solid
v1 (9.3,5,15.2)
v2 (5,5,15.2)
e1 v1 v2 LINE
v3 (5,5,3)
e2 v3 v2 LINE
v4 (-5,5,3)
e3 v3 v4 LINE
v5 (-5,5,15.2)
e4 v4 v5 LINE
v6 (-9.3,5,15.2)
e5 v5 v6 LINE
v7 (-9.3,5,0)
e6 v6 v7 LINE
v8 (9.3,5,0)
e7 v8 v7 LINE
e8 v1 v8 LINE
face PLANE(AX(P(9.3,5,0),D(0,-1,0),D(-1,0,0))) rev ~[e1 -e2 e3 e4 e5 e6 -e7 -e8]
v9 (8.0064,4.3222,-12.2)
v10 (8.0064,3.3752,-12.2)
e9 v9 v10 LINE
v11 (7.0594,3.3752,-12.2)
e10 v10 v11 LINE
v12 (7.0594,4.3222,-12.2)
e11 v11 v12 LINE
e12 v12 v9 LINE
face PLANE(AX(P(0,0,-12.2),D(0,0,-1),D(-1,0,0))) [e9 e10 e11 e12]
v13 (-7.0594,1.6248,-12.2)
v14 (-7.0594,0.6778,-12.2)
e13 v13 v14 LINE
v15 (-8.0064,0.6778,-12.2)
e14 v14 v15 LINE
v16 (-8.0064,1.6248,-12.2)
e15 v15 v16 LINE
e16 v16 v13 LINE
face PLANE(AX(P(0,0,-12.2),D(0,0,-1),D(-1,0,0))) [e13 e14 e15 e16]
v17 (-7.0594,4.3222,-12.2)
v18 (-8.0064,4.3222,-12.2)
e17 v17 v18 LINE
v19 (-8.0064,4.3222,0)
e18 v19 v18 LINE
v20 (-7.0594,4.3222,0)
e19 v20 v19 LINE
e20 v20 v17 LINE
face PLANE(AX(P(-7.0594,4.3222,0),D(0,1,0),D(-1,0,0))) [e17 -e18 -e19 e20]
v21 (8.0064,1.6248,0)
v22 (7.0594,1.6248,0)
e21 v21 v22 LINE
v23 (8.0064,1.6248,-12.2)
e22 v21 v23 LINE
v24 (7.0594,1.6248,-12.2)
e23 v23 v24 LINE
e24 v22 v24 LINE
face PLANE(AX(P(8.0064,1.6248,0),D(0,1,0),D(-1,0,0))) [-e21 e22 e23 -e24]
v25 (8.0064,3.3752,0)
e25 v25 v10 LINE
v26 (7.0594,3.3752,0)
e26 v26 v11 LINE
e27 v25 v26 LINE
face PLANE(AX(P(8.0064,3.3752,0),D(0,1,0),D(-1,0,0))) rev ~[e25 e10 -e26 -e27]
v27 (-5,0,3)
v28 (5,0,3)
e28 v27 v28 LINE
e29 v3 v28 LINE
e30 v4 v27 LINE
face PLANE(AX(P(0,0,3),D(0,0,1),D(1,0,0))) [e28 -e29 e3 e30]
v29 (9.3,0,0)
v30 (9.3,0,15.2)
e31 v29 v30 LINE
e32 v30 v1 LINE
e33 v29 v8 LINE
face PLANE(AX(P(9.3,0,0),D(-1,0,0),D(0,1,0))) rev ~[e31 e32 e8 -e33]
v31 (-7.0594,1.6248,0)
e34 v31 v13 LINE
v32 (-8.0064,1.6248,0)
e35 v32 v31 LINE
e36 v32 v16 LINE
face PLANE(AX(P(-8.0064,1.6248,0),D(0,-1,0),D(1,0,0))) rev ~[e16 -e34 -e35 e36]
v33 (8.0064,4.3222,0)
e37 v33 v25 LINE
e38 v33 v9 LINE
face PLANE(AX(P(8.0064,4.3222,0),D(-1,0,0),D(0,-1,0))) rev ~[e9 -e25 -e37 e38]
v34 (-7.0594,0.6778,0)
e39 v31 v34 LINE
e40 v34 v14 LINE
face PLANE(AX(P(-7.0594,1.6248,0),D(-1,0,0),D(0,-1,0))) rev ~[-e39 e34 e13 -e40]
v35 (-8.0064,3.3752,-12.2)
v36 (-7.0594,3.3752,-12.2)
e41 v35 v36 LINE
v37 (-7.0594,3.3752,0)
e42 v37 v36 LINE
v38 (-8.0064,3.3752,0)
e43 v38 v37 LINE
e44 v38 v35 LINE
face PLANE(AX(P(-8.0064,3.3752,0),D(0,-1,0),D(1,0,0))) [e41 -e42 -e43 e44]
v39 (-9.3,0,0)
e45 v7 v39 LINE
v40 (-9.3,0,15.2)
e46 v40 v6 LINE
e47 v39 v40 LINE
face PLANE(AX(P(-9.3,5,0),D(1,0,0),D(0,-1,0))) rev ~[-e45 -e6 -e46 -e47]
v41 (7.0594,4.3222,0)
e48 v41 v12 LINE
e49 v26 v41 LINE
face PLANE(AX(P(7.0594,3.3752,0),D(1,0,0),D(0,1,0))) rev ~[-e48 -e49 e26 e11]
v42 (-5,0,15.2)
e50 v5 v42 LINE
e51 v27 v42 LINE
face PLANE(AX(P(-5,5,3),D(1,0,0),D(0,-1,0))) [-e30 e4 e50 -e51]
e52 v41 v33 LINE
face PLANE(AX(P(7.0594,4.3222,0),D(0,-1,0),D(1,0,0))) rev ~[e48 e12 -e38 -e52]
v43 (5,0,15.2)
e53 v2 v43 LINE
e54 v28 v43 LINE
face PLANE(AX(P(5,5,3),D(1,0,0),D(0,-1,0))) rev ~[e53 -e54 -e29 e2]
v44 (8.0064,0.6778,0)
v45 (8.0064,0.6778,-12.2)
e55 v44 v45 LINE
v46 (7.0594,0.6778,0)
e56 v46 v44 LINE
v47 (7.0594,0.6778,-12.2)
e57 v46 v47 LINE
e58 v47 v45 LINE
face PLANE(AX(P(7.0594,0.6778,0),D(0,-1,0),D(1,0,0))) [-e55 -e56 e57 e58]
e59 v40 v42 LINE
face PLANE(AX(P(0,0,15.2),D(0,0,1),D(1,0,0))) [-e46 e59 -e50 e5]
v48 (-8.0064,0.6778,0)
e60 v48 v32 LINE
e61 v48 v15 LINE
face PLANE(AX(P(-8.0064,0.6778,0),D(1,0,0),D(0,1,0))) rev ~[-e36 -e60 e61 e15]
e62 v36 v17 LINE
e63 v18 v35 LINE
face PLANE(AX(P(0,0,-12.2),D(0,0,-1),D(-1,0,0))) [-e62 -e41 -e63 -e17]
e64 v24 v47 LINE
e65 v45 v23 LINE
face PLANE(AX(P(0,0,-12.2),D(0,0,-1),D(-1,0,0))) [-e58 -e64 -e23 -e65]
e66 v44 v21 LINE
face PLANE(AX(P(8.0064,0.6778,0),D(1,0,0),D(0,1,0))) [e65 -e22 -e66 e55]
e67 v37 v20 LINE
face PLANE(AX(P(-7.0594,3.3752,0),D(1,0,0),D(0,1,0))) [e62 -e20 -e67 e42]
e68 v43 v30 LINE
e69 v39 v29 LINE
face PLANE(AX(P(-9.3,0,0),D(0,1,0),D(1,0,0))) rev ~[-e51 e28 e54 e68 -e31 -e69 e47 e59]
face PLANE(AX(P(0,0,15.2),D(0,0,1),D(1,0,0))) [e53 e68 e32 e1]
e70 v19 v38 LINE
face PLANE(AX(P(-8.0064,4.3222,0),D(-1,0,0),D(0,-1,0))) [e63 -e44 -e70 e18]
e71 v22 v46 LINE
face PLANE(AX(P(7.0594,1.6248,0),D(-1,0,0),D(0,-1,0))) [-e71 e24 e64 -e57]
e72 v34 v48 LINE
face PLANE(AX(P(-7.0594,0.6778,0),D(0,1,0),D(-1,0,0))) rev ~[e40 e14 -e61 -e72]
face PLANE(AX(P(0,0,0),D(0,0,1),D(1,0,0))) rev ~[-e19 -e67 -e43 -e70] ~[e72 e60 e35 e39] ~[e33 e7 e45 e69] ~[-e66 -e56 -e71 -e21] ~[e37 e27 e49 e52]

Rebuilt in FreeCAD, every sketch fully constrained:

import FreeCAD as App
import Part
import Sketcher

V = App.Vector


def add_polygon(sketch, points):
    """Adds a closed chain of lines whose ends are joined by coincident constraints."""
    first, n = sketch.GeometryCount, len(points)
    for a, b in zip(points, points[1:] + points[:1]):
        sketch.addGeometry(Part.LineSegment(App.Vector(*a, 0), App.Vector(*b, 0)), False)
    for i in range(n):
        sketch.addConstraint(Sketcher.Constraint("Coincident", first + i, 2, first + (i + 1) % n, 1))

doc = App.newDocument("Part")
body = doc.addObject("PartDesign::Body", "Body")

# Sketch on XY plane
sketch1 = doc.addObject("Sketcher::SketchObject", "Sketch")
body.addObject(sketch1)
sketch1.AttachmentSupport = (doc.XY_Plane, [""])
sketch1.MapMode = "FlatFace"
add_polygon(sketch1, [(-9, 5), (-9, 0), (9, 0), (9, 5)])  # lines 0-3
sketch1.addConstraint([
    Sketcher.Constraint("Vertical", 0),
    Sketcher.Constraint("Horizontal", 1),
    Sketcher.Constraint("Vertical", 2),
    Sketcher.Constraint("Horizontal", 3),
    Sketcher.Constraint("Symmetric", 0, 2, 1, 2, -1, 1),
    Sketcher.Constraint("DistanceY", 0, 2, 0, 1, 5.0),
    Sketcher.Constraint("DistanceX", 1, 1, 1, 2, 18.6),
])
pad1 = doc.addObject("PartDesign::Pad", "Pad")
body.addObject(pad1)
pad1.Profile = sketch1
pad1.Length = 3

# Sketch on XY plane
sketch2 = doc.addObject("Sketcher::SketchObject", "Sketch001")
body.addObject(sketch2)
sketch2.AttachmentSupport = (doc.XY_Plane, [""])
sketch2.MapMode = "FlatFace"
sketch2.AttachmentOffset = App.Placement(V(0, 0, 3), App.Rotation())
add_polygon(sketch2, [(9.3, 0), (9.3, 5), (5, 5), (5, 0)])  # lines 0-3
add_polygon(sketch2, [(-5, 0), (-5, 5), (-9.3, 5), (-9.3, 0)])  # lines 4-7
sketch2.addConstraint([
    Sketcher.Constraint("Vertical", 0),
    Sketcher.Constraint("Horizontal", 1),
    Sketcher.Constraint("Vertical", 2),
    Sketcher.Constraint("Horizontal", 3),
    Sketcher.Constraint("Vertical", 4),
    Sketcher.Constraint("Horizontal", 5),
    Sketcher.Constraint("Vertical", 6),
    Sketcher.Constraint("Horizontal", 7),
    Sketcher.Constraint("Symmetric", 3, 2, 6, 2, -1, 1),
    Sketcher.Constraint("Symmetric", 1, 2, 4, 2, -2),
    Sketcher.Constraint("PointOnObject", 2, 2, -1),
    Sketcher.Constraint("DistanceY", 0, 1, 0, 2, 5.0),
    Sketcher.Constraint("DistanceX", -1, 1, 1, 2, 5.0),
    Sketcher.Constraint("DistanceX", 1, 2, 1, 1, 4.3),
])
pad2 = doc.addObject("PartDesign::Pad", "Pad001")
body.addObject(pad2)
pad2.Profile = sketch2
pad2.Length = 12.2

# Sketch on XY plane
sketch3 = doc.addObject("Sketcher::SketchObject", "Sketch002")
body.addObject(sketch3)
sketch3.AttachmentSupport = (doc.XY_Plane, [""])
sketch3.MapMode = "FlatFace"
add_polygon(sketch3, [(7.1, 1.6), (8, 1.6), (8, 0.7), (7.1, 0.7)])  # lines 0-3
add_polygon(sketch3, [(8, 4.3), (8, 3.4), (7.1, 3.4), (7.1, 4.3)])  # lines 4-7
add_polygon(sketch3, [(-8, 0.7), (-8, 1.6), (-7.1, 1.6), (-7.1, 0.7)])  # lines 8-11
add_polygon(sketch3, [(-7.1, 3.4), (-8, 3.4), (-8, 4.3), (-7.1, 4.3)])  # lines 12-15
sketch3.addConstraint([
    Sketcher.Constraint("Horizontal", 0),
    Sketcher.Constraint("Vertical", 1),
    Sketcher.Constraint("Horizontal", 2),
    Sketcher.Constraint("Vertical", 3),
    Sketcher.Constraint("Vertical", 4),
    Sketcher.Constraint("Horizontal", 5),
    Sketcher.Constraint("Vertical", 6),
    Sketcher.Constraint("Horizontal", 7),
    Sketcher.Constraint("Vertical", 8),
    Sketcher.Constraint("Horizontal", 9),
    Sketcher.Constraint("Vertical", 10),
    Sketcher.Constraint("Horizontal", 11),
    Sketcher.Constraint("Horizontal", 12),
    Sketcher.Constraint("Vertical", 13),
    Sketcher.Constraint("Horizontal", 14),
    Sketcher.Constraint("Vertical", 15),
    Sketcher.Constraint("Symmetric", 0, 2, 8, 2, -2),
    Sketcher.Constraint("Symmetric", 2, 2, 10, 2, -2),
    Sketcher.Constraint("Symmetric", 4, 2, 12, 2, -2),
    Sketcher.Constraint("Symmetric", 6, 2, 14, 2, -2),
    Sketcher.Constraint("Vertical", 1, 2, 4, 2),
    Sketcher.Constraint("Vertical", 3, 2, 5, 2),
    Sketcher.Constraint("Equal", 14, 1),
    Sketcher.Constraint("Equal", 3, 4),
    Sketcher.Constraint("DistanceX", 0, 1, 0, 2, 0.947),
    Sketcher.Constraint("DistanceX", -1, 1, 0, 2, 8.0064),
    Sketcher.Constraint("DistanceY", -1, 1, 0, 2, 1.6248),
    Sketcher.Constraint("DistanceY", -1, 1, 4, 2, 3.3752),
])
pad3 = doc.addObject("PartDesign::Pad", "Pad002")
body.addObject(pad3)
pad3.Profile = sketch3
pad3.Length = 12.2
pad3.Reversed = True

doc.recompute()
